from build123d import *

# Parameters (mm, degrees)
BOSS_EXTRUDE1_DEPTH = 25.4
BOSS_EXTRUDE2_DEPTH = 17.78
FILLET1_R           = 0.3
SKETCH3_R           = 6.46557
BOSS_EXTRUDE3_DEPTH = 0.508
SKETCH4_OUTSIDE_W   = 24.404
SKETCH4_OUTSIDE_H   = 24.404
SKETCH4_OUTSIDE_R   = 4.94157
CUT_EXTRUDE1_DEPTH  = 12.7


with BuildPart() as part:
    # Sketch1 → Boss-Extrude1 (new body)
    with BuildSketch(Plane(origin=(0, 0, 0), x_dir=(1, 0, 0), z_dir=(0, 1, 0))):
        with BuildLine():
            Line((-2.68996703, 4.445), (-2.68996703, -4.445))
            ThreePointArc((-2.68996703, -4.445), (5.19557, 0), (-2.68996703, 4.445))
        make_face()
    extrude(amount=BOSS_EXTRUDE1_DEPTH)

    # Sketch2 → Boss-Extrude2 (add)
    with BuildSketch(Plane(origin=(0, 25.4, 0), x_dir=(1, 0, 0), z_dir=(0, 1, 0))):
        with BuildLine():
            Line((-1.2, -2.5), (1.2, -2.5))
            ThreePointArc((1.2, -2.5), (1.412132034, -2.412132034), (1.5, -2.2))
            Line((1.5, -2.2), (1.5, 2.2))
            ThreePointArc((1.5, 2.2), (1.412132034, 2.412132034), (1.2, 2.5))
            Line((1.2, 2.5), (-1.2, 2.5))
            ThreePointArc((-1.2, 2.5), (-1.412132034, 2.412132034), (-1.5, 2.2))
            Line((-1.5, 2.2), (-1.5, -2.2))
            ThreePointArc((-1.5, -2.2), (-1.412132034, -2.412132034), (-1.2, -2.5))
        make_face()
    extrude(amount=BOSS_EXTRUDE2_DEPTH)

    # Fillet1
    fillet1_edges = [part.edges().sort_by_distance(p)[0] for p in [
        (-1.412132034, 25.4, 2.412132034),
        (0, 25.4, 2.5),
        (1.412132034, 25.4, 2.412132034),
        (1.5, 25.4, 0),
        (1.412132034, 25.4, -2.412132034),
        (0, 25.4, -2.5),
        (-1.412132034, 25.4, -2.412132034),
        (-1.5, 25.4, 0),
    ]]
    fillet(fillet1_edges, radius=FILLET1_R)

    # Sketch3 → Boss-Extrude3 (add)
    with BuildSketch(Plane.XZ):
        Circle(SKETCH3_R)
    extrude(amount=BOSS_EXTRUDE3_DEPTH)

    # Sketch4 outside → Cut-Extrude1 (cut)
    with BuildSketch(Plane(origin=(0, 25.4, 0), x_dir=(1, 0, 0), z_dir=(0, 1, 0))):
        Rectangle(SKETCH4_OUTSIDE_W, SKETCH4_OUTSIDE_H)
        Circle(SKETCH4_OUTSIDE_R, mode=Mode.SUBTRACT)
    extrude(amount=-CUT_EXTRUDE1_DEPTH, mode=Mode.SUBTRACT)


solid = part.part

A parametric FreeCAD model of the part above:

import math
import FreeCAD as App
import Part
import Sketcher

V = App.Vector
Q = App.Units.Quantity


def edges_at(feature, points):
    """Names of the edges that pass closest to the given points."""
    edges = feature.Shape.Edges
    near = lambda p: min(range(len(edges)), key=lambda i: edges[i].distToShape(Part.Vertex(*p))[0])
    return sorted({f"Edge{near(p) + 1}" for p in points})


def add_polygon(sketch, points):
    """Adds a closed chain of lines whose ends are joined by coincident constraints."""
    first, n = sketch.GeometryCount, len(points)
    for a, b in zip(points, points[1:] + points[:1]):
        sketch.addGeometry(Part.LineSegment(App.Vector(*a, 0), App.Vector(*b, 0)), False)
    for i in range(n):
        sketch.addConstraint(Sketcher.Constraint("Coincident", first + i, 2, first + (i + 1) % n, 1))

doc = App.newDocument("Part")
params = doc.addObject("Spreadsheet::Sheet", "Params")
for row, (alias, value) in enumerate([
    ("sketch1_height", "0.35 in"),
    ("pad1_length", "1 in"),
    ("pad2_length", "0.7 in"),
    ("fillet_radius", "0.3 mm"),
    ("pad3_length", "0.02 in"),
    ("pocket1_length", "0.5 in"),
], start=1):
    params.set(f"A{row}", alias)
    params.set(f"B{row}", "=" + value)
    params.setAlias(f"B{row}", alias)

body = doc.addObject("PartDesign::Body", "Body")

# Sketch on XZ plane
sketch1 = body.newObject("Sketcher::SketchObject", "Sketch")
sketch1.AttachmentSupport = (doc.getObject("XZ_Plane"), [""])
sketch1.MapMode = "FlatFace"
sketch1.addGeometry(Part.LineSegment(V(-3, -4, 0), V(-3, 4, 0)), False)
sketch1.addGeometry(Part.ArcOfCircle(Part.Circle(V(0, 0, 0), V(0, 0, 1), 5), math.radians(-121), math.radians(121)), False)
sketch1.addConstraint(Sketcher.Constraint("Coincident", 0, 1, 1, 1))
sketch1.addConstraint(Sketcher.Constraint("Coincident", 1, 2, 0, 2))
sketch1.addConstraint(Sketcher.Constraint("Vertical", 0))
sketch1.addConstraint(Sketcher.Constraint("Coincident", 1, 3, -1, 1))
sketch1.addConstraint(Sketcher.Constraint("DistanceY", 0, 1, 0, 2, Q("0.35 in")))
sketch1.addConstraint(Sketcher.Constraint("Radius", 1, 5.19557))
sketch1.setExpression("Constraints[4]", "Params.sketch1_height")
pad1 = body.newObject("PartDesign::Pad", "Pad")
pad1.Profile = sketch1
pad1.setExpression("Length", "Params.pad1_length")
pad1.Reversed = True

# Sketch on XZ plane
sketch2 = body.newObject("Sketcher::SketchObject", "Sketch001")
sketch2.AttachmentSupport = (doc.getObject("XZ_Plane"), [""])
sketch2.MapMode = "FlatFace"
sketch2.AttachmentOffset = App.Placement(V(0, 0, -1 * 25.4), App.Rotation())
sketch2.addGeometry(Part.LineSegment(V(-1.2, 2.5, 0), V(1.2, 2.5, 0)), False)
sketch2.addGeometry(Part.ArcOfCircle(Part.Circle(V(1.2, 2.2, 0), V(0, 0, 1), 0.3), math.radians(0), math.radians(90)), False)
sketch2.addGeometry(Part.LineSegment(V(1.5, 2.2, 0), V(1.5, -2.2, 0)), False)
sketch2.addGeometry(Part.ArcOfCircle(Part.Circle(V(1.2, -2.2, 0), V(0, 0, 1), 0.3), math.radians(-90), math.radians(0)), False)
sketch2.addGeometry(Part.LineSegment(V(1.2, -2.5, 0), V(-1.2, -2.5, 0)), False)
sketch2.addGeometry(Part.ArcOfCircle(Part.Circle(V(-1.2, -2.2, 0), V(0, 0, 1), 0.3), math.radians(-180), math.radians(-90)), False)
sketch2.addGeometry(Part.LineSegment(V(-1.5, -2.2, 0), V(-1.5, 2.2, 0)), False)
sketch2.addGeometry(Part.ArcOfCircle(Part.Circle(V(-1.2, 2.2, 0), V(0, 0, 1), 0.3), math.radians(90), math.radians(180)), False)
sketch2.addConstraint(Sketcher.Constraint("Tangent", 0, 2, 1, 2))
sketch2.addConstraint(Sketcher.Constraint("Tangent", 1, 1, 2, 1))
sketch2.addConstraint(Sketcher.Constraint("Tangent", 2, 2, 3, 2))
sketch2.addConstraint(Sketcher.Constraint("Tangent", 3, 1, 4, 1))
sketch2.addConstraint(Sketcher.Constraint("Tangent", 4, 2, 5, 2))
sketch2.addConstraint(Sketcher.Constraint("Tangent", 5, 1, 6, 1))
sketch2.addConstraint(Sketcher.Constraint("Tangent", 6, 2, 7, 2))
sketch2.addConstraint(Sketcher.Constraint("Tangent", 7, 1, 0, 1))
sketch2.addConstraint(Sketcher.Constraint("Horizontal", 0))
sketch2.addConstraint(Sketcher.Constraint("Vertical", 2))
sketch2.addConstraint(Sketcher.Constraint("Horizontal", 4))
sketch2.addConstraint(Sketcher.Constraint("Vertical", 6))
sketch2.addConstraint(Sketcher.Constraint("Equal", 1, 3))
sketch2.addConstraint(Sketcher.Constraint("Equal", 3, 5))
sketch2.addConstraint(Sketcher.Constraint("Equal", 5, 7))
sketch2.addConstraint(Sketcher.Constraint("Symmetric", 1, 3, 5, 3, -1, 1))
sketch2.addConstraint(Sketcher.Constraint("Radius", 1, 0.3))
sketch2.addConstraint(Sketcher.Constraint("DistanceX", 0, 1, 0, 2, 2.4))
sketch2.addConstraint(Sketcher.Constraint("DistanceY", 2, 2, 2, 1, 4.4))
pad2 = body.newObject("PartDesign::Pad", "Pad001")
pad2.Profile = sketch2
pad2.setExpression("Length", "Params.pad2_length")
pad2.Reversed = True
doc.recompute()

fillet = body.newObject("PartDesign::Fillet", "Fillet")
fillet.Base = (pad2, edges_at(pad2, [
    (-1.412, 25.4, 2.412),
    (0, 25.4, 2.5),
    (1.412, 25.4, 2.412),
    (1.5, 25.4, 0),
    (1.412, 25.4, -2.412),
    (0, 25.4, -2.5),
    (-1.412, 25.4, -2.412),
    (-1.5, 25.4, 0),
]))
fillet.setExpression("Radius", "Params.fillet_radius")

# Sketch on XZ plane
sketch3 = body.newObject("Sketcher::SketchObject", "Sketch002")
sketch3.AttachmentSupport = (doc.getObject("XZ_Plane"), [""])
sketch3.MapMode = "FlatFace"
sketch3.addGeometry(Part.Circle(V(0, 0, 0), V(0, 0, 1), 6), False)
sketch3.addConstraint(Sketcher.Constraint("Coincident", 0, 3, -1, 1))
sketch3.addConstraint(Sketcher.Constraint("Diameter", 0, Q("0.5091 in")))
pad3 = body.newObject("PartDesign::Pad", "Pad002")
pad3.Profile = sketch3
pad3.setExpression("Length", "Params.pad3_length")

# Sketch on XZ plane
sketch4 = body.newObject("Sketcher::SketchObject", "Sketch003")
sketch4.AttachmentSupport = (doc.getObject("XZ_Plane"), [""])
sketch4.MapMode = "FlatFace"
sketch4.AttachmentOffset = App.Placement(V(0, 0, -1 * 25.4), App.Rotation())
add_polygon(sketch4, [(-12.2, -12.2), (-12.2, 12.2), (12.2, 12.2), (12.2, -12.2)])  # lines 0-3
sketch4.addGeometry(Part.Circle(V(0, 0, 0), V(0, 0, 1), 4.9), False)  # 4
sketch4.addConstraint(Sketcher.Constraint("Vertical", 0))
sketch4.addConstraint(Sketcher.Constraint("Horizontal", 1))
sketch4.addConstraint(Sketcher.Constraint("Vertical", 2))
sketch4.addConstraint(Sketcher.Constraint("Horizontal", 3))
sketch4.addConstraint(Sketcher.Constraint("Coincident", 4, 3, -1, 1))
sketch4.addConstraint(Sketcher.Constraint("Symmetric", 0, 2, 2, 2, -1, 1))
sketch4.addConstraint(Sketcher.Constraint("Equal", 3, 0))
sketch4.addConstraint(Sketcher.Constraint("Diameter", 4, Q("0.3891 in")))
sketch4.addConstraint(Sketcher.Constraint("DistanceX", 1, 1, 1, 2, 24.404))
pocket1 = body.newObject("PartDesign::Pocket", "Pocket")
pocket1.Profile = sketch4
pocket1.setExpression("Length", "Params.pocket1_length")
pocket1.Reversed = True

doc.recompute()
